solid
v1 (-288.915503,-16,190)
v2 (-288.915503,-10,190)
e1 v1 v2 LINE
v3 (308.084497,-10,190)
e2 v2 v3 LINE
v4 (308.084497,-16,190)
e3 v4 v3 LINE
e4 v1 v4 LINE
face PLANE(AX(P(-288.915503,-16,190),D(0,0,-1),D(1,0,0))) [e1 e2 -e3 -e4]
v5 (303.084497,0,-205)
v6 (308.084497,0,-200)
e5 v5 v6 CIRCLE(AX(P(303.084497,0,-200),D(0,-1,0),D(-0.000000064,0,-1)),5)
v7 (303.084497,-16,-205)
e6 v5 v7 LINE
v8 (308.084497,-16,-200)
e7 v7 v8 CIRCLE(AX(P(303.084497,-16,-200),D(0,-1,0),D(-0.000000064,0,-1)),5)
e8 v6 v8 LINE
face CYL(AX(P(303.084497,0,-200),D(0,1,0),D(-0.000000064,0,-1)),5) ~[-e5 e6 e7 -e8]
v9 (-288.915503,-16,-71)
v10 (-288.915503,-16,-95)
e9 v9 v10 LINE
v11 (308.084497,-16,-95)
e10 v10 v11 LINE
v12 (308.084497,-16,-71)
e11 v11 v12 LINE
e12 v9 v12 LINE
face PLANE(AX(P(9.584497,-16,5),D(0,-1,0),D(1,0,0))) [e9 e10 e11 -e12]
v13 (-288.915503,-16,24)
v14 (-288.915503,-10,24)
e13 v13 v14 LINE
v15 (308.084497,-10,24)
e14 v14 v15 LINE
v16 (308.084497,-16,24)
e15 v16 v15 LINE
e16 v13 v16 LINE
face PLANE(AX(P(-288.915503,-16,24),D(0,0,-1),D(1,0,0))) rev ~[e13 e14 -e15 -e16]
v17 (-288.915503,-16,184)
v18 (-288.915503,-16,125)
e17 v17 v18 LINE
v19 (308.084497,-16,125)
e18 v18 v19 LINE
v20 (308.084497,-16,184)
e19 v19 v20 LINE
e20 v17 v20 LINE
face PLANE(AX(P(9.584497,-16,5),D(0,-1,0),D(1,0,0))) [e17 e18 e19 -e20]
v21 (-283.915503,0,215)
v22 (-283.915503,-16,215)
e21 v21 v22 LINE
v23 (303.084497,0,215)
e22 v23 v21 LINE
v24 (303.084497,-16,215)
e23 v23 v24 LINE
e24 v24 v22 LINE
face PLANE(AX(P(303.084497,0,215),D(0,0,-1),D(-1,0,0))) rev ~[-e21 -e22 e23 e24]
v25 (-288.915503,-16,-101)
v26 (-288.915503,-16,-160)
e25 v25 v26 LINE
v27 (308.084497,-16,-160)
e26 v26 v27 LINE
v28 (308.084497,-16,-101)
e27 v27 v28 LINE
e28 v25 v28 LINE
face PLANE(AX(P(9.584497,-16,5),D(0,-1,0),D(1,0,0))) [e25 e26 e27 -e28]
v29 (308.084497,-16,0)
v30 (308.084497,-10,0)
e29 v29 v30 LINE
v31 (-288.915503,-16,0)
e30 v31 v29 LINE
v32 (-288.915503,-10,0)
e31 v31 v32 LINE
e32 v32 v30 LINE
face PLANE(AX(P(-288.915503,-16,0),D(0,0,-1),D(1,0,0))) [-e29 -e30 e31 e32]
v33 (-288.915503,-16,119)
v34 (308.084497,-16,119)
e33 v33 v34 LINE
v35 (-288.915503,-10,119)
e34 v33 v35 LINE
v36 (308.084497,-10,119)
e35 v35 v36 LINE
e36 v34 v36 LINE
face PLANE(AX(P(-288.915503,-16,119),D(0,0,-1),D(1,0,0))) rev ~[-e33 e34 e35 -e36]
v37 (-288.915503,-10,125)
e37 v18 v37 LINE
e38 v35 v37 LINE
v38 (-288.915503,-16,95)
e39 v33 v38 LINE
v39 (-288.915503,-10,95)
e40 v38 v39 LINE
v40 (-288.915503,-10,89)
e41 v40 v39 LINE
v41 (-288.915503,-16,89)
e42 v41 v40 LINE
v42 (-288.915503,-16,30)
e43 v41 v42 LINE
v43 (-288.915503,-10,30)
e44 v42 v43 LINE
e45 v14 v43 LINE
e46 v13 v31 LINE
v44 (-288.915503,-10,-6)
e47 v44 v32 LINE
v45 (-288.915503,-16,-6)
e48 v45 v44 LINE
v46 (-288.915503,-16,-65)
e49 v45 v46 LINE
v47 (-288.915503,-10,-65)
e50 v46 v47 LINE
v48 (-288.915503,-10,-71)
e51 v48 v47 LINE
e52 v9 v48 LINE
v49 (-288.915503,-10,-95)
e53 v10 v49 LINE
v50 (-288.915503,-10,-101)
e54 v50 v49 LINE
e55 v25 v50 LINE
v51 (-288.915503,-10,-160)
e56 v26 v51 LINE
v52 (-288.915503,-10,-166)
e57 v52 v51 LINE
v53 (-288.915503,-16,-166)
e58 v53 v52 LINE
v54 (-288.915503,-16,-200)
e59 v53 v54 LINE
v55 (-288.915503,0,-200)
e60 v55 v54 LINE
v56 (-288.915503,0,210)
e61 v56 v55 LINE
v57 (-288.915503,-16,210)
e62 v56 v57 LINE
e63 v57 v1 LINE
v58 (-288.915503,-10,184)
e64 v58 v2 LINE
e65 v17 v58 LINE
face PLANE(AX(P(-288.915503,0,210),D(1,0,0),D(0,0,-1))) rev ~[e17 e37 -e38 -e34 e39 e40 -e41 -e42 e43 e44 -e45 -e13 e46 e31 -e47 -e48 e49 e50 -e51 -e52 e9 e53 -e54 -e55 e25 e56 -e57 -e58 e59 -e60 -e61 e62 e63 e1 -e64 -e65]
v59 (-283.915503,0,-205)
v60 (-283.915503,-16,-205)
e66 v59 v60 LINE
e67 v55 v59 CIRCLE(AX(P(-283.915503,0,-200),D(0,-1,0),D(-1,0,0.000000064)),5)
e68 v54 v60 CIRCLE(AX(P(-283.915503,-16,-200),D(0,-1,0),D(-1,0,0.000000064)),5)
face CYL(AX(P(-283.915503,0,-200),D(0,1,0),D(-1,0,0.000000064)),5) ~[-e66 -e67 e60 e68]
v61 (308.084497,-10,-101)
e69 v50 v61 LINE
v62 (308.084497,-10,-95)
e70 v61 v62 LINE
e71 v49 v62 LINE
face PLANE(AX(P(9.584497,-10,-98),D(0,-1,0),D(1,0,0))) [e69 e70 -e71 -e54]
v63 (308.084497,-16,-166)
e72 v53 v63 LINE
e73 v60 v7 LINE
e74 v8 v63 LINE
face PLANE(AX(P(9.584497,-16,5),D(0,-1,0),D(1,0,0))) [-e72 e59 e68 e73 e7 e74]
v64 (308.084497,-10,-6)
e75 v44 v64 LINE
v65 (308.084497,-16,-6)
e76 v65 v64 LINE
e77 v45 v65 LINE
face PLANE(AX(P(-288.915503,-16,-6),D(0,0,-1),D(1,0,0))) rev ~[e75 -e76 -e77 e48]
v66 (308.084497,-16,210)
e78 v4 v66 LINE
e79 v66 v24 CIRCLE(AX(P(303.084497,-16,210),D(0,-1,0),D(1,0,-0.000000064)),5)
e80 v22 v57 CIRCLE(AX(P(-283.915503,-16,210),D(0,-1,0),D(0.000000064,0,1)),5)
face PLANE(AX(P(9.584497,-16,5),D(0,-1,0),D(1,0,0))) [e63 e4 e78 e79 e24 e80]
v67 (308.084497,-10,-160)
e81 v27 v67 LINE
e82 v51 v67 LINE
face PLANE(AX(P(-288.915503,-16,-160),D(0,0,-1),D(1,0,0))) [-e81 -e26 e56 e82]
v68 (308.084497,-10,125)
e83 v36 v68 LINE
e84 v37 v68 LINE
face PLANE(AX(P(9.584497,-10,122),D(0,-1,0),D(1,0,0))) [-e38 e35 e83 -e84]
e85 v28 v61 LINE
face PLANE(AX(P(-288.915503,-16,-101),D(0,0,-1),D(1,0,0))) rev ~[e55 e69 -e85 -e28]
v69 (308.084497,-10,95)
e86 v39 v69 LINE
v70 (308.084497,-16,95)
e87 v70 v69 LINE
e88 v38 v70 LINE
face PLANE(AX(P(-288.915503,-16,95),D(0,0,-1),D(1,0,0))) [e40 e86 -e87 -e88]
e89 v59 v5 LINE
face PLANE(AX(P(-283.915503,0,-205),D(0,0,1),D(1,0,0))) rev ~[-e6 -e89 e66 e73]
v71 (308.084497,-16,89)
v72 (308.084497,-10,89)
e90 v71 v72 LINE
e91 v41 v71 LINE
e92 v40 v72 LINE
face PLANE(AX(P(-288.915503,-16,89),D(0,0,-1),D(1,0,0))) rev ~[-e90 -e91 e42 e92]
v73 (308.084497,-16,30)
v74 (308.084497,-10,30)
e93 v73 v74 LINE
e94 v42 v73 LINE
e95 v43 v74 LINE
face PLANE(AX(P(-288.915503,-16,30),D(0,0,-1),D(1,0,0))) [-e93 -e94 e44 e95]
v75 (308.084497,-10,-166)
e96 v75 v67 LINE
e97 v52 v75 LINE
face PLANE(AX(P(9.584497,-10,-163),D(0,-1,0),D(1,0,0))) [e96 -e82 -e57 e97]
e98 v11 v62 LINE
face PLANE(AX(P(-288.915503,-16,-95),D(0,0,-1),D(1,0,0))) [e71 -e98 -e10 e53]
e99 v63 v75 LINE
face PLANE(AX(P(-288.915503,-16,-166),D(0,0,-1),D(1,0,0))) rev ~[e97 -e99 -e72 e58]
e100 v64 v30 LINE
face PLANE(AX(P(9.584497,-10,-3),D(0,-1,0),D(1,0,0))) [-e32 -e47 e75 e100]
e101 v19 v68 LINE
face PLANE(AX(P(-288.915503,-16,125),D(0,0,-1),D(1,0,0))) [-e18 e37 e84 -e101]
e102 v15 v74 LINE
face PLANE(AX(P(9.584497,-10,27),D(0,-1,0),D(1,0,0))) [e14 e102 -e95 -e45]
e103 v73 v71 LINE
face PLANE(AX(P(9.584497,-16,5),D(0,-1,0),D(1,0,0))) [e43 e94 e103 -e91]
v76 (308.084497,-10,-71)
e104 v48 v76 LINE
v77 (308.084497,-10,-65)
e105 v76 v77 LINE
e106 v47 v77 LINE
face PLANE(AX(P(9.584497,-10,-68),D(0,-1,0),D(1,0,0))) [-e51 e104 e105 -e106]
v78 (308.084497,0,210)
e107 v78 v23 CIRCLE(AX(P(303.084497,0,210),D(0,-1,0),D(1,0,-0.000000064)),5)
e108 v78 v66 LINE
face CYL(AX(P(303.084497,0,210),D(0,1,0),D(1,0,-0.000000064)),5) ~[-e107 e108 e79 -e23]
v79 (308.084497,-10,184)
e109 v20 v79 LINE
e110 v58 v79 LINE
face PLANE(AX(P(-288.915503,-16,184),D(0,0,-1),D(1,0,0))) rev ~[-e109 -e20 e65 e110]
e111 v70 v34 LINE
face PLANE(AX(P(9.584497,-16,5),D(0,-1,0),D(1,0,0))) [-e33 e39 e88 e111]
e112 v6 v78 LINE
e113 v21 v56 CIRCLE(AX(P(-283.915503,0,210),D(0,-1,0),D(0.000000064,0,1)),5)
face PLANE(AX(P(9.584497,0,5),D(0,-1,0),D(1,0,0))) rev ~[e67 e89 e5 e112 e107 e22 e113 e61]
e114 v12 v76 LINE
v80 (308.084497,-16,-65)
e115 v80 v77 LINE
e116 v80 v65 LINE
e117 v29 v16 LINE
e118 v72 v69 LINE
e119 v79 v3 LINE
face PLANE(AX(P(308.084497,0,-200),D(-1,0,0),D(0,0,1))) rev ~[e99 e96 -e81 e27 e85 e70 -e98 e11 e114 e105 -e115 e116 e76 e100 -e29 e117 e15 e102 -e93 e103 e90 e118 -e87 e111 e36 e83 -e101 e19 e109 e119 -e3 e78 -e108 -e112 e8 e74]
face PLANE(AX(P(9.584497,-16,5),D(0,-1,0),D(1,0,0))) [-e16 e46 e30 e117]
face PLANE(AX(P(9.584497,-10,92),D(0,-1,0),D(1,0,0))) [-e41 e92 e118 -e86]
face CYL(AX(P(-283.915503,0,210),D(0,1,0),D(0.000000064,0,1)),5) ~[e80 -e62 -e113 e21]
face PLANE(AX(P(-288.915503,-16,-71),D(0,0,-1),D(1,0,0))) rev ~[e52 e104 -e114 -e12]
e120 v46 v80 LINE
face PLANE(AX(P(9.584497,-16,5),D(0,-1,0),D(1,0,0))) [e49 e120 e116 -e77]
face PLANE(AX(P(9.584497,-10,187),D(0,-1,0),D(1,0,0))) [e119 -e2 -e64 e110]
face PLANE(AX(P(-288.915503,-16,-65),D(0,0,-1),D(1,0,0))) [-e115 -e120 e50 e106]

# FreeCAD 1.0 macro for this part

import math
import FreeCAD as App
import Part
import Sketcher
from FreeCAD import Vector
Q = App.Units.Quantity

doc = App.newDocument("Part")
params = doc.addObject("Spreadsheet::Sheet", "Params")
for row, (alias, value) in enumerate([
    ("sketch1_radius", "5 mm"),
    ("sketch1_width", "587 mm"),
    ("sketch1_height", "410 mm"),
    ("pad1_length", "16 mm"),
    ("sketch2_width", "597 mm"),
    ("sketch2_height", "6 mm"),
    ("pocket1_length", "6 mm"),
], start=1):
    params.set(f"A{row}", alias)
    params.set(f"B{row}", "=" + value)
    params.setAlias(f"B{row}", alias)

body = doc.addObject("PartDesign::Body", "Body")

# Sketch on XZ plane
sketch1 = body.newObject("Sketcher::SketchObject", "Sketch")
sketch1.AttachmentSupport = (doc.getObject("XZ_Plane"), [""])
sketch1.MapMode = "FlatFace"
sketch1.addGeometry([
    Part.LineSegment(Vector(-283.9, -205, 0), Vector(303.1, -205, 0)),  # 0
    Part.ArcOfCircle(Part.Circle(Vector(303.1, -200, 0), Vector(0, 0, 1), 5), math.radians(-90), math.radians(0)),  # 1
    Part.LineSegment(Vector(308.1, -200, 0), Vector(308.1, 210, 0)),  # 2
    Part.ArcOfCircle(Part.Circle(Vector(303.1, 210, 0), Vector(0, 0, 1), 5), math.radians(0), math.radians(90)),  # 3
    Part.LineSegment(Vector(303.1, 215, 0), Vector(-283.9, 215, 0)),  # 4
    Part.ArcOfCircle(Part.Circle(Vector(-283.9, 210, 0), Vector(0, 0, 1), 5), math.radians(90), math.radians(180)),  # 5
    Part.LineSegment(Vector(-288.9, 210, 0), Vector(-288.9, -200, 0)),  # 6
    Part.ArcOfCircle(Part.Circle(Vector(-283.9, -200, 0), Vector(0, 0, 1), 5), math.radians(180), math.radians(270)),  # 7
], False)
sketch1.addConstraint([
    Sketcher.Constraint("Tangent", 0, 2, 1, 1),
    Sketcher.Constraint("Tangent", 1, 2, 2, 1),
    Sketcher.Constraint("Tangent", 2, 2, 3, 1),
    Sketcher.Constraint("Tangent", 3, 2, 4, 1),
    Sketcher.Constraint("Tangent", 4, 2, 5, 1),
    Sketcher.Constraint("Tangent", 5, 2, 6, 1),
    Sketcher.Constraint("Tangent", 6, 2, 7, 1),
    Sketcher.Constraint("Tangent", 7, 2, 0, 1),
    Sketcher.Constraint("Horizontal", 0),
    Sketcher.Constraint("Vertical", 2),
    Sketcher.Constraint("Horizontal", 4),
    Sketcher.Constraint("Vertical", 6),
    Sketcher.Constraint("Equal", 1, 3),
    Sketcher.Constraint("Equal", 3, 5),
    Sketcher.Constraint("Equal", 5, 7),
    Sketcher.Constraint("Radius", 1, Q("5 mm")),
    Sketcher.Constraint("DistanceX", 0, 1, 0, 2, Q("587 mm")),
    Sketcher.Constraint("DistanceY", 2, 1, 2, 2, Q("410 mm")),
    Sketcher.Constraint("DistanceY", 1, 3, -1, 1, Q("200 mm")),
    Sketcher.Constraint("DistanceX", -1, 1, 1, 3, Q("303.084497 mm")),
])
sketch1.setExpression("Constraints[15]", "Params.sketch1_radius")
sketch1.setExpression("Constraints[16]", "Params.sketch1_width")
sketch1.setExpression("Constraints[17]", "Params.sketch1_height")
pad1 = body.newObject("PartDesign::Pad", "Pad")
pad1.Profile = sketch1
pad1.setExpression("Length", "Params.pad1_length")

# Sketch on XZ plane
sketch2 = body.newObject("Sketcher::SketchObject", "Sketch001")
sketch2.AttachmentSupport = (doc.getObject("XZ_Plane"), [""])
sketch2.MapMode = "FlatFace"
sketch2.AttachmentOffset = App.Placement(Vector(0, 0, 16), App.Rotation())
sketch2.addGeometry([
    Part.LineSegment(Vector(-289, 190, 0), Vector(-289, 184, 0)),  # 0
    Part.LineSegment(Vector(-289, 184, 0), Vector(308, 184, 0)),  # 1
    Part.LineSegment(Vector(308, 184, 0), Vector(308, 190, 0)),  # 2
    Part.LineSegment(Vector(308, 190, 0), Vector(-289, 190, 0)),  # 3
    Part.LineSegment(Vector(-289, 125, 0), Vector(-289, 119, 0)),  # 4
    Part.LineSegment(Vector(-289, 119, 0), Vector(308, 119, 0)),  # 5
    Part.LineSegment(Vector(308, 119, 0), Vector(308, 125, 0)),  # 6
    Part.LineSegment(Vector(308, 125, 0), Vector(-289, 125, 0)),  # 7
    Part.LineSegment(Vector(-289, 95, 0), Vector(-289, 89, 0)),  # 8
    Part.LineSegment(Vector(-289, 89, 0), Vector(308, 89, 0)),  # 9
    Part.LineSegment(Vector(308, 89, 0), Vector(308, 95, 0)),  # 10
    Part.LineSegment(Vector(308, 95, 0), Vector(-289, 95, 0)),  # 11
    Part.LineSegment(Vector(-289, 0, 0), Vector(-289, -6, 0)),  # 12
    Part.LineSegment(Vector(-289, -6, 0), Vector(308, -6, 0)),  # 13
    Part.LineSegment(Vector(308, -6, 0), Vector(308, 0, 0)),  # 14
    Part.LineSegment(Vector(308, 0, 0), Vector(-289, 0, 0)),  # 15
    Part.LineSegment(Vector(-289, -65, 0), Vector(-289, -71, 0)),  # 16
    Part.LineSegment(Vector(-289, -71, 0), Vector(308, -71, 0)),  # 17
    Part.LineSegment(Vector(308, -71, 0), Vector(308, -65, 0)),  # 18
    Part.LineSegment(Vector(308, -65, 0), Vector(-289, -65, 0)),  # 19
    Part.LineSegment(Vector(-289, -95, 0), Vector(-289, -101, 0)),  # 20
    Part.LineSegment(Vector(-289, -101, 0), Vector(308, -101, 0)),  # 21
    Part.LineSegment(Vector(308, -101, 0), Vector(308, -95, 0)),  # 22
    Part.LineSegment(Vector(308, -95, 0), Vector(-289, -95, 0)),  # 23
    Part.LineSegment(Vector(-289, 30, 0), Vector(-289, 24, 0)),  # 24
    Part.LineSegment(Vector(-289, 24, 0), Vector(308, 24, 0)),  # 25
    Part.LineSegment(Vector(308, 24, 0), Vector(308, 30, 0)),  # 26
    Part.LineSegment(Vector(308, 30, 0), Vector(-289, 30, 0)),  # 27
    Part.LineSegment(Vector(-289, -160, 0), Vector(-289, -166, 0)),  # 28
    Part.LineSegment(Vector(-289, -166, 0), Vector(308, -166, 0)),  # 29
    Part.LineSegment(Vector(308, -166, 0), Vector(308, -160, 0)),  # 30
    Part.LineSegment(Vector(308, -160, 0), Vector(-289, -160, 0)),  # 31
], False)
sketch2.addConstraint([
    Sketcher.Constraint("Coincident", 0, 2, 1, 1),
    Sketcher.Constraint("Coincident", 1, 2, 2, 1),
    Sketcher.Constraint("Coincident", 2, 2, 3, 1),
    Sketcher.Constraint("Coincident", 3, 2, 0, 1),
    Sketcher.Constraint("Coincident", 4, 2, 5, 1),
    Sketcher.Constraint("Coincident", 5, 2, 6, 1),
    Sketcher.Constraint("Coincident", 6, 2, 7, 1),
    Sketcher.Constraint("Coincident", 7, 2, 4, 1),
    Sketcher.Constraint("Coincident", 8, 2, 9, 1),
    Sketcher.Constraint("Coincident", 9, 2, 10, 1),
    Sketcher.Constraint("Coincident", 10, 2, 11, 1),
    Sketcher.Constraint("Coincident", 11, 2, 8, 1),
    Sketcher.Constraint("Coincident", 12, 2, 13, 1),
    Sketcher.Constraint("Coincident", 13, 2, 14, 1),
    Sketcher.Constraint("Coincident", 14, 2, 15, 1),
    Sketcher.Constraint("Coincident", 15, 2, 12, 1),
    Sketcher.Constraint("Coincident", 16, 2, 17, 1),
    Sketcher.Constraint("Coincident", 17, 2, 18, 1),
    Sketcher.Constraint("Coincident", 18, 2, 19, 1),
    Sketcher.Constraint("Coincident", 19, 2, 16, 1),
    Sketcher.Constraint("Coincident", 20, 2, 21, 1),
    Sketcher.Constraint("Coincident", 21, 2, 22, 1),
    Sketcher.Constraint("Coincident", 22, 2, 23, 1),
    Sketcher.Constraint("Coincident", 23, 2, 20, 1),
    Sketcher.Constraint("Coincident", 24, 2, 25, 1),
    Sketcher.Constraint("Coincident", 25, 2, 26, 1),
    Sketcher.Constraint("Coincident", 26, 2, 27, 1),
    Sketcher.Constraint("Coincident", 27, 2, 24, 1),
    Sketcher.Constraint("Coincident", 28, 2, 29, 1),
    Sketcher.Constraint("Coincident", 29, 2, 30, 1),
    Sketcher.Constraint("Coincident", 30, 2, 31, 1),
    Sketcher.Constraint("Coincident", 31, 2, 28, 1),
    Sketcher.Constraint("Vertical", 0),
    Sketcher.Constraint("Horizontal", 1),
    Sketcher.Constraint("Vertical", 2),
    Sketcher.Constraint("Horizontal", 3),
    Sketcher.Constraint("Vertical", 4),
    Sketcher.Constraint("Horizontal", 5),
    Sketcher.Constraint("Vertical", 6),
    Sketcher.Constraint("Horizontal", 7),
    Sketcher.Constraint("Vertical", 8),
    Sketcher.Constraint("Horizontal", 9),
    Sketcher.Constraint("Vertical", 10),
    Sketcher.Constraint("Horizontal", 11),
    Sketcher.Constraint("Vertical", 12),
    Sketcher.Constraint("Horizontal", 13),
    Sketcher.Constraint("Vertical", 14),
    Sketcher.Constraint("Horizontal", 15),
    Sketcher.Constraint("Vertical", 16),
    Sketcher.Constraint("Horizontal", 17),
    Sketcher.Constraint("Vertical", 18),
    Sketcher.Constraint("Horizontal", 19),
    Sketcher.Constraint("Vertical", 20),
    Sketcher.Constraint("Horizontal", 21),
    Sketcher.Constraint("Vertical", 22),
    Sketcher.Constraint("Horizontal", 23),
    Sketcher.Constraint("Vertical", 24),
    Sketcher.Constraint("Horizontal", 25),
    Sketcher.Constraint("Vertical", 26),
    Sketcher.Constraint("Horizontal", 27),
    Sketcher.Constraint("Vertical", 28),
    Sketcher.Constraint("Horizontal", 29),
    Sketcher.Constraint("Vertical", 30),
    Sketcher.Constraint("Horizontal", 31),
    Sketcher.Constraint("Symmetric", 10, 2, 22, 2, -1),
    Sketcher.Constraint("PointOnObject", 14, 2, -1),
    Sketcher.Constraint("Vertical", 3, 2, 4, 2),
    Sketcher.Constraint("Vertical", 2, 2, 5, 2),
    Sketcher.Constraint("Vertical", 7, 2, 8, 2),
    Sketcher.Constraint("Vertical", 6, 2, 9, 2),
    Sketcher.Constraint("Vertical", 11, 2, 12, 2),
    Sketcher.Constraint("Vertical", 10, 2, 13, 2),
    Sketcher.Constraint("Vertical", 15, 2, 16, 2),
    Sketcher.Constraint("Vertical", 14, 2, 17, 2),
    Sketcher.Constraint("Vertical", 19, 2, 20, 2),
    Sketcher.Constraint("Vertical", 23, 2, 24, 2),
    Sketcher.Constraint("Vertical", 22, 2, 25, 2),
    Sketcher.Constraint("Vertical", 27, 2, 28, 2),
    Sketcher.Constraint("Vertical", 26, 2, 29, 2),
    Sketcher.Constraint("Equal", 2, 4),
    Sketcher.Constraint("Equal", 6, 8),
    Sketcher.Constraint("Equal", 10, 12),
    Sketcher.Constraint("Equal", 14, 16),
    Sketcher.Constraint("Equal", 18, 20),
    Sketcher.Constraint("Equal", 22, 24),
    Sketcher.Constraint("Equal", 26, 28),
    Sketcher.Constraint("DistanceX", 1, 1, 1, 2, Q("597 mm")),
    Sketcher.Constraint("DistanceY", 0, 2, 0, 1, Q("6 mm")),
    Sketcher.Constraint("DistanceY", -1, 1, 0, 2, Q("184 mm")),
    Sketcher.Constraint("DistanceY", -1, 1, 4, 2, Q("119 mm")),
    Sketcher.Constraint("DistanceY", -1, 1, 8, 2, Q("89 mm")),
    Sketcher.Constraint("DistanceY", 16, 2, -1, 1, Q("71 mm")),
    Sketcher.Constraint("DistanceY", -1, 1, 24, 2, Q("24 mm")),
    Sketcher.Constraint("DistanceY", 28, 2, -1, 1, Q("166 mm")),
    Sketcher.Constraint("DistanceX", 0, 2, -1, 1, Q("288.915503 mm")),
])
sketch2.setExpression("Constraints[86]", "Params.sketch2_width")
sketch2.setExpression("Constraints[87]", "Params.sketch2_height")
pocket1 = body.newObject("PartDesign::Pocket", "Pocket")
pocket1.Profile = sketch2
pocket1.setExpression("Length", "Params.pocket1_length")

doc.recompute()
